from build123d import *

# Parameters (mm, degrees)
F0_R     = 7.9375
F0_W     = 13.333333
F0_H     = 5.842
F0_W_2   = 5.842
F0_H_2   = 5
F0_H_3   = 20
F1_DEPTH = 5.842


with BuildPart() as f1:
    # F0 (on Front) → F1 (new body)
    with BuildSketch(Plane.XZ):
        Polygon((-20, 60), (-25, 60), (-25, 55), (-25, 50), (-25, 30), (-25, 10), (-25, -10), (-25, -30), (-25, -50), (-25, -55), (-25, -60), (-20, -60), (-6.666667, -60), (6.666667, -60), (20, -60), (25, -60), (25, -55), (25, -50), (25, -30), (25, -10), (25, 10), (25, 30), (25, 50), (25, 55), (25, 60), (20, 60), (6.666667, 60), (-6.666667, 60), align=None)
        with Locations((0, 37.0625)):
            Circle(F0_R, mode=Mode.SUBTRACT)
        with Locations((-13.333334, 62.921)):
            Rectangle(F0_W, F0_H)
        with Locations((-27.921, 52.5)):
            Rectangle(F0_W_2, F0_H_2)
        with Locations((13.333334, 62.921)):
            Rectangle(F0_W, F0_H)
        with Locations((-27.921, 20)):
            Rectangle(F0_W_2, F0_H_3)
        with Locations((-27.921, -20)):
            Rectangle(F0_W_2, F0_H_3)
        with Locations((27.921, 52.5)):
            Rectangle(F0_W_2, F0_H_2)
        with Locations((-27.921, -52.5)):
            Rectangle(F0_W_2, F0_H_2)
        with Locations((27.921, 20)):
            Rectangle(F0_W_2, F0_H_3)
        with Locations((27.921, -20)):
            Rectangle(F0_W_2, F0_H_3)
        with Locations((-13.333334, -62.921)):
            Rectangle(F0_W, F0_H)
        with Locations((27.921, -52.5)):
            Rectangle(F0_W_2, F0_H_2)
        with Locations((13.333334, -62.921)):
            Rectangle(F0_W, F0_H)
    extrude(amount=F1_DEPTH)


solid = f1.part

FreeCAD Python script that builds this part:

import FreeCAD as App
import Part
import Sketcher
from FreeCAD import Vector
Q = App.Units.Quantity

doc = App.newDocument("Part")
params = doc.addObject("Spreadsheet::Sheet", "Params")
for row, (alias, value) in enumerate([
    ("sketch1_width", "5 mm"),
    ("sketch1_height", "20 mm"),
    ("pad1_length", "5.842 mm"),
], start=1):
    params.set(f"A{row}", alias)
    params.set(f"B{row}", "=" + value)
    params.setAlias(f"B{row}", alias)

body = doc.addObject("PartDesign::Body", "Body")

# Sketch on XZ plane
sketch1 = doc.addObject("Sketcher::SketchObject", "Sketch")
body.addObject(sketch1)
sketch1.AttachmentSupport = (doc.XZ_Plane, [""])
sketch1.MapMode = "FlatFace"
sketch1.addGeometry(Part.LineSegment(Vector(-25, 60, 0), Vector(-25, 55, 0)), False)
sketch1.addGeometry(Part.LineSegment(Vector(-25, 55, 0), Vector(-30.8, 55, 0)), False)
sketch1.addGeometry(Part.LineSegment(Vector(-30.8, 55, 0), Vector(-30.8, 50, 0)), False)
sketch1.addGeometry(Part.LineSegment(Vector(-30.8, 50, 0), Vector(-25, 50, 0)), False)
sketch1.addGeometry(Part.LineSegment(Vector(-25, 50, 0), Vector(-25, 30, 0)), False)
sketch1.addGeometry(Part.LineSegment(Vector(-25, 30, 0), Vector(-30.8, 30, 0)), False)
sketch1.addGeometry(Part.LineSegment(Vector(-30.8, 30, 0), Vector(-30.8, 10, 0)), False)
sketch1.addGeometry(Part.LineSegment(Vector(-30.8, 10, 0), Vector(-25, 10, 0)), False)
sketch1.addGeometry(Part.LineSegment(Vector(-25, 10, 0), Vector(-25, -10, 0)), False)
sketch1.addGeometry(Part.LineSegment(Vector(-25, -10, 0), Vector(-30.8, -10, 0)), False)
sketch1.addGeometry(Part.LineSegment(Vector(-30.8, -10, 0), Vector(-30.8, -30, 0)), False)
sketch1.addGeometry(Part.LineSegment(Vector(-30.8, -30, 0), Vector(-25, -30, 0)), False)
sketch1.addGeometry(Part.LineSegment(Vector(-25, -30, 0), Vector(-25, -50, 0)), False)
sketch1.addGeometry(Part.LineSegment(Vector(-25, -50, 0), Vector(-30.8, -50, 0)), False)
sketch1.addGeometry(Part.LineSegment(Vector(-30.8, -50, 0), Vector(-30.8, -55, 0)), False)
sketch1.addGeometry(Part.LineSegment(Vector(-30.8, -55, 0), Vector(-25, -55, 0)), False)
sketch1.addGeometry(Part.LineSegment(Vector(-25, -55, 0), Vector(-25, -60, 0)), False)
sketch1.addGeometry(Part.LineSegment(Vector(-25, -60, 0), Vector(-20, -60, 0)), False)
sketch1.addGeometry(Part.LineSegment(Vector(-20, -60, 0), Vector(-20, -65.8, 0)), False)
sketch1.addGeometry(Part.LineSegment(Vector(-20, -65.8, 0), Vector(-6.7, -65.8, 0)), False)
sketch1.addGeometry(Part.LineSegment(Vector(-6.7, -65.8, 0), Vector(-6.7, -60, 0)), False)
sketch1.addGeometry(Part.LineSegment(Vector(-6.7, -60, 0), Vector(6.7, -60, 0)), False)
sketch1.addGeometry(Part.LineSegment(Vector(6.7, -60, 0), Vector(6.7, -65.8, 0)), False)
sketch1.addGeometry(Part.LineSegment(Vector(6.7, -65.8, 0), Vector(20, -65.8, 0)), False)
sketch1.addGeometry(Part.LineSegment(Vector(20, -65.8, 0), Vector(20, -60, 0)), False)
sketch1.addGeometry(Part.LineSegment(Vector(20, -60, 0), Vector(25, -60, 0)), False)
sketch1.addGeometry(Part.LineSegment(Vector(25, -60, 0), Vector(25, -55, 0)), False)
sketch1.addGeometry(Part.LineSegment(Vector(25, -55, 0), Vector(30.8, -55, 0)), False)
sketch1.addGeometry(Part.LineSegment(Vector(30.8, -55, 0), Vector(30.8, -50, 0)), False)
sketch1.addGeometry(Part.LineSegment(Vector(30.8, -50, 0), Vector(25, -50, 0)), False)
sketch1.addGeometry(Part.LineSegment(Vector(25, -50, 0), Vector(25, -30, 0)), False)
sketch1.addGeometry(Part.LineSegment(Vector(25, -30, 0), Vector(30.8, -30, 0)), False)
sketch1.addGeometry(Part.LineSegment(Vector(30.8, -30, 0), Vector(30.8, -10, 0)), False)
sketch1.addGeometry(Part.LineSegment(Vector(30.8, -10, 0), Vector(25, -10, 0)), False)
sketch1.addGeometry(Part.LineSegment(Vector(25, -10, 0), Vector(25, 10, 0)), False)
sketch1.addGeometry(Part.LineSegment(Vector(25, 10, 0), Vector(30.8, 10, 0)), False)
sketch1.addGeometry(Part.LineSegment(Vector(30.8, 10, 0), Vector(30.8, 30, 0)), False)
sketch1.addGeometry(Part.LineSegment(Vector(30.8, 30, 0), Vector(25, 30, 0)), False)
sketch1.addGeometry(Part.LineSegment(Vector(25, 30, 0), Vector(25, 50, 0)), False)
sketch1.addGeometry(Part.LineSegment(Vector(25, 50, 0), Vector(30.8, 50, 0)), False)
sketch1.addGeometry(Part.LineSegment(Vector(30.8, 50, 0), Vector(30.8, 55, 0)), False)
sketch1.addGeometry(Part.LineSegment(Vector(30.8, 55, 0), Vector(25, 55, 0)), False)
sketch1.addGeometry(Part.LineSegment(Vector(25, 55, 0), Vector(25, 60, 0)), False)
sketch1.addGeometry(Part.LineSegment(Vector(25, 60, 0), Vector(20, 60, 0)), False)
sketch1.addGeometry(Part.LineSegment(Vector(20, 60, 0), Vector(20, 65.8, 0)), False)
sketch1.addGeometry(Part.LineSegment(Vector(20, 65.8, 0), Vector(6.7, 65.8, 0)), False)
sketch1.addGeometry(Part.LineSegment(Vector(6.7, 65.8, 0), Vector(6.7, 60, 0)), False)
sketch1.addGeometry(Part.LineSegment(Vector(6.7, 60, 0), Vector(-6.7, 60, 0)), False)
sketch1.addGeometry(Part.LineSegment(Vector(-6.7, 60, 0), Vector(-6.7, 65.8, 0)), False)
sketch1.addGeometry(Part.LineSegment(Vector(-6.7, 65.8, 0), Vector(-20, 65.8, 0)), False)
sketch1.addGeometry(Part.LineSegment(Vector(-20, 65.8, 0), Vector(-20, 60, 0)), False)
sketch1.addGeometry(Part.LineSegment(Vector(-20, 60, 0), Vector(-25, 60, 0)), False)
sketch1.addGeometry(Part.Circle(Vector(0, 37.1, 0), Vector(0, 0, 1), 7.9), False)
sketch1.addConstraint(Sketcher.Constraint("Coincident", 0, 2, 1, 1))
sketch1.addConstraint(Sketcher.Constraint("Coincident", 1, 2, 2, 1))
sketch1.addConstraint(Sketcher.Constraint("Coincident", 2, 2, 3, 1))
sketch1.addConstraint(Sketcher.Constraint("Coincident", 3, 2, 4, 1))
sketch1.addConstraint(Sketcher.Constraint("Coincident", 4, 2, 5, 1))
sketch1.addConstraint(Sketcher.Constraint("Coincident", 5, 2, 6, 1))
sketch1.addConstraint(Sketcher.Constraint("Coincident", 6, 2, 7, 1))
sketch1.addConstraint(Sketcher.Constraint("Coincident", 7, 2, 8, 1))
sketch1.addConstraint(Sketcher.Constraint("Coincident", 8, 2, 9, 1))
sketch1.addConstraint(Sketcher.Constraint("Coincident", 9, 2, 10, 1))
sketch1.addConstraint(Sketcher.Constraint("Coincident", 10, 2, 11, 1))
sketch1.addConstraint(Sketcher.Constraint("Coincident", 11, 2, 12, 1))
sketch1.addConstraint(Sketcher.Constraint("Coincident", 12, 2, 13, 1))
sketch1.addConstraint(Sketcher.Constraint("Coincident", 13, 2, 14, 1))
sketch1.addConstraint(Sketcher.Constraint("Coincident", 14, 2, 15, 1))
sketch1.addConstraint(Sketcher.Constraint("Coincident", 15, 2, 16, 1))
sketch1.addConstraint(Sketcher.Constraint("Coincident", 16, 2, 17, 1))
sketch1.addConstraint(Sketcher.Constraint("Coincident", 17, 2, 18, 1))
sketch1.addConstraint(Sketcher.Constraint("Coincident", 18, 2, 19, 1))
sketch1.addConstraint(Sketcher.Constraint("Coincident", 19, 2, 20, 1))
sketch1.addConstraint(Sketcher.Constraint("Coincident", 20, 2, 21, 1))
sketch1.addConstraint(Sketcher.Constraint("Coincident", 21, 2, 22, 1))
sketch1.addConstraint(Sketcher.Constraint("Coincident", 22, 2, 23, 1))
sketch1.addConstraint(Sketcher.Constraint("Coincident", 23, 2, 24, 1))
sketch1.addConstraint(Sketcher.Constraint("Coincident", 24, 2, 25, 1))
sketch1.addConstraint(Sketcher.Constraint("Coincident", 25, 2, 26, 1))
sketch1.addConstraint(Sketcher.Constraint("Coincident", 26, 2, 27, 1))
sketch1.addConstraint(Sketcher.Constraint("Coincident", 27, 2, 28, 1))
sketch1.addConstraint(Sketcher.Constraint("Coincident", 28, 2, 29, 1))
sketch1.addConstraint(Sketcher.Constraint("Coincident", 29, 2, 30, 1))
sketch1.addConstraint(Sketcher.Constraint("Coincident", 30, 2, 31, 1))
sketch1.addConstraint(Sketcher.Constraint("Coincident", 31, 2, 32, 1))
sketch1.addConstraint(Sketcher.Constraint("Coincident", 32, 2, 33, 1))
sketch1.addConstraint(Sketcher.Constraint("Coincident", 33, 2, 34, 1))
sketch1.addConstraint(Sketcher.Constraint("Coincident", 34, 2, 35, 1))
sketch1.addConstraint(Sketcher.Constraint("Coincident", 35, 2, 36, 1))
sketch1.addConstraint(Sketcher.Constraint("Coincident", 36, 2, 37, 1))
sketch1.addConstraint(Sketcher.Constraint("Coincident", 37, 2, 38, 1))
sketch1.addConstraint(Sketcher.Constraint("Coincident", 38, 2, 39, 1))
sketch1.addConstraint(Sketcher.Constraint("Coincident", 39, 2, 40, 1))
sketch1.addConstraint(Sketcher.Constraint("Coincident", 40, 2, 41, 1))
sketch1.addConstraint(Sketcher.Constraint("Coincident", 41, 2, 42, 1))
sketch1.addConstraint(Sketcher.Constraint("Coincident", 42, 2, 43, 1))
sketch1.addConstraint(Sketcher.Constraint("Coincident", 43, 2, 44, 1))
sketch1.addConstraint(Sketcher.Constraint("Coincident", 44, 2, 45, 1))
sketch1.addConstraint(Sketcher.Constraint("Coincident", 45, 2, 46, 1))
sketch1.addConstraint(Sketcher.Constraint("Coincident", 46, 2, 47, 1))
sketch1.addConstraint(Sketcher.Constraint("Coincident", 47, 2, 48, 1))
sketch1.addConstraint(Sketcher.Constraint("Coincident", 48, 2, 49, 1))
sketch1.addConstraint(Sketcher.Constraint("Coincident", 49, 2, 50, 1))
sketch1.addConstraint(Sketcher.Constraint("Coincident", 50, 2, 51, 1))
sketch1.addConstraint(Sketcher.Constraint("Coincident", 51, 2, 0, 1))
sketch1.addConstraint(Sketcher.Constraint("Vertical", 0))
sketch1.addConstraint(Sketcher.Constraint("Horizontal", 1))
sketch1.addConstraint(Sketcher.Constraint("Vertical", 2))
sketch1.addConstraint(Sketcher.Constraint("Horizontal", 3))
sketch1.addConstraint(Sketcher.Constraint("Vertical", 4))
sketch1.addConstraint(Sketcher.Constraint("Horizontal", 5))
sketch1.addConstraint(Sketcher.Constraint("Vertical", 6))
sketch1.addConstraint(Sketcher.Constraint("Horizontal", 7))
sketch1.addConstraint(Sketcher.Constraint("Vertical", 8))
sketch1.addConstraint(Sketcher.Constraint("Horizontal", 9))
sketch1.addConstraint(Sketcher.Constraint("Vertical", 10))
sketch1.addConstraint(Sketcher.Constraint("Horizontal", 11))
sketch1.addConstraint(Sketcher.Constraint("Vertical", 12))
sketch1.addConstraint(Sketcher.Constraint("Horizontal", 13))
sketch1.addConstraint(Sketcher.Constraint("Vertical", 14))
sketch1.addConstraint(Sketcher.Constraint("Horizontal", 15))
sketch1.addConstraint(Sketcher.Constraint("Vertical", 16))
sketch1.addConstraint(Sketcher.Constraint("Horizontal", 17))
sketch1.addConstraint(Sketcher.Constraint("Vertical", 18))
sketch1.addConstraint(Sketcher.Constraint("Horizontal", 19))
sketch1.addConstraint(Sketcher.Constraint("Vertical", 20))
sketch1.addConstraint(Sketcher.Constraint("Horizontal", 21))
sketch1.addConstraint(Sketcher.Constraint("Vertical", 22))
sketch1.addConstraint(Sketcher.Constraint("Horizontal", 23))
sketch1.addConstraint(Sketcher.Constraint("Vertical", 24))
sketch1.addConstraint(Sketcher.Constraint("Horizontal", 25))
sketch1.addConstraint(Sketcher.Constraint("Vertical", 26))
sketch1.addConstraint(Sketcher.Constraint("Horizontal", 27))
sketch1.addConstraint(Sketcher.Constraint("Vertical", 28))
sketch1.addConstraint(Sketcher.Constraint("Horizontal", 29))
sketch1.addConstraint(Sketcher.Constraint("Vertical", 30))
sketch1.addConstraint(Sketcher.Constraint("Horizontal", 31))
sketch1.addConstraint(Sketcher.Constraint("Vertical", 32))
sketch1.addConstraint(Sketcher.Constraint("Horizontal", 33))
sketch1.addConstraint(Sketcher.Constraint("Vertical", 34))
sketch1.addConstraint(Sketcher.Constraint("Horizontal", 35))
sketch1.addConstraint(Sketcher.Constraint("Vertical", 36))
sketch1.addConstraint(Sketcher.Constraint("Horizontal", 37))
sketch1.addConstraint(Sketcher.Constraint("Vertical", 38))
sketch1.addConstraint(Sketcher.Constraint("Horizontal", 39))
sketch1.addConstraint(Sketcher.Constraint("Vertical", 40))
sketch1.addConstraint(Sketcher.Constraint("Horizontal", 41))
sketch1.addConstraint(Sketcher.Constraint("Vertical", 42))
sketch1.addConstraint(Sketcher.Constraint("Horizontal", 43))
sketch1.addConstraint(Sketcher.Constraint("Vertical", 44))
sketch1.addConstraint(Sketcher.Constraint("Horizontal", 45))
sketch1.addConstraint(Sketcher.Constraint("Vertical", 46))
sketch1.addConstraint(Sketcher.Constraint("Horizontal", 47))
sketch1.addConstraint(Sketcher.Constraint("Vertical", 48))
sketch1.addConstraint(Sketcher.Constraint("Horizontal", 49))
sketch1.addConstraint(Sketcher.Constraint("Vertical", 50))
sketch1.addConstraint(Sketcher.Constraint("Horizontal", 51))
sketch1.addConstraint(Sketcher.Constraint("Symmetric", 0, 2, 26, 2, -1, 1))
sketch1.addConstraint(Sketcher.Constraint("Symmetric", 2, 2, 28, 2, -1, 1))
sketch1.addConstraint(Sketcher.Constraint("Symmetric", 4, 2, 30, 2, -1, 1))
sketch1.addConstraint(Sketcher.Constraint("Symmetric", 6, 2, 32, 2, -1, 1))
sketch1.addConstraint(Sketcher.Constraint("Symmetric", 8, 2, 34, 2, -1, 1))
sketch1.addConstraint(Sketcher.Constraint("Symmetric", 10, 2, 36, 2, -1, 1))
sketch1.addConstraint(Sketcher.Constraint("Symmetric", 12, 2, 38, 2, -1, 1))
sketch1.addConstraint(Sketcher.Constraint("Symmetric", 14, 2, 40, 2, -1, 1))
sketch1.addConstraint(Sketcher.Constraint("Symmetric", 16, 2, 42, 2, -1, 1))
sketch1.addConstraint(Sketcher.Constraint("Symmetric", 18, 2, 44, 2, -1, 1))
sketch1.addConstraint(Sketcher.Constraint("Symmetric", 20, 2, 46, 2, -1, 1))
sketch1.addConstraint(Sketcher.Constraint("Symmetric", 22, 2, 48, 2, -1, 1))
sketch1.addConstraint(Sketcher.Constraint("Symmetric", 24, 2, 50, 2, -1, 1))
sketch1.addConstraint(Sketcher.Constraint("Symmetric", 19, 2, 22, 2, -2))
sketch1.addConstraint(Sketcher.Constraint("Symmetric", 17, 2, 24, 2, -2))
sketch1.addConstraint(Sketcher.Constraint("Symmetric", 15, 2, 26, 2, -2))
sketch1.addConstraint(Sketcher.Constraint("Symmetric", 13, 2, 28, 2, -2))
sketch1.addConstraint(Sketcher.Constraint("Symmetric", 11, 2, 30, 2, -2))
sketch1.addConstraint(Sketcher.Constraint("Symmetric", 9, 2, 32, 2, -2))
sketch1.addConstraint(Sketcher.Constraint("PointOnObject", 52, 3, -2))
sketch1.addConstraint(Sketcher.Constraint("Horizontal", 17, 2, 20, 2))
sketch1.addConstraint(Sketcher.Constraint("Vertical", 0, 2, 3, 2))
sketch1.addConstraint(Sketcher.Constraint("Vertical", 2, 2, 5, 2))
sketch1.addConstraint(Sketcher.Constraint("Vertical", 4, 2, 7, 2))
sketch1.addConstraint(Sketcher.Constraint("Equal", 51, 0))
sketch1.addConstraint(Sketcher.Constraint("Equal", 0, 2))
sketch1.addConstraint(Sketcher.Constraint("Equal", 4, 6))
sketch1.addConstraint(Sketcher.Constraint("Equal", 6, 8))
sketch1.addConstraint(Sketcher.Constraint("Equal", 41, 18))
sketch1.addConstraint(Sketcher.Constraint("DistanceX", 17, 1, 17, 2, Q("5 mm")))
sketch1.addConstraint(Sketcher.Constraint("DistanceY", 4, 2, 4, 1, Q("20 mm")))
sketch1.addConstraint(Sketcher.Constraint("Diameter", 52, Q("15.875 mm")))
sketch1.addConstraint(Sketcher.Constraint("DistanceX", 0, 2, -1, 1, Q("25 mm")))
sketch1.addConstraint(Sketcher.Constraint("DistanceX", 1, 2, 1, 1, Q("5.842 mm")))
sketch1.addConstraint(Sketcher.Constraint("DistanceY", -1, 1, 52, 3, Q("37.0625 mm")))
sketch1.addConstraint(Sketcher.Constraint("DistanceX", 19, 1, 19, 2, Q("13.333333 mm")))
sketch1.setExpression("Constraints[133]", "Params.sketch1_width")
sketch1.setExpression("Constraints[134]", "Params.sketch1_height")
pad1 = doc.addObject("PartDesign::Pad", "Pad")
body.addObject(pad1)
pad1.Profile = sketch1
pad1.setExpression("Length", "Params.pad1_length")

doc.recompute()
